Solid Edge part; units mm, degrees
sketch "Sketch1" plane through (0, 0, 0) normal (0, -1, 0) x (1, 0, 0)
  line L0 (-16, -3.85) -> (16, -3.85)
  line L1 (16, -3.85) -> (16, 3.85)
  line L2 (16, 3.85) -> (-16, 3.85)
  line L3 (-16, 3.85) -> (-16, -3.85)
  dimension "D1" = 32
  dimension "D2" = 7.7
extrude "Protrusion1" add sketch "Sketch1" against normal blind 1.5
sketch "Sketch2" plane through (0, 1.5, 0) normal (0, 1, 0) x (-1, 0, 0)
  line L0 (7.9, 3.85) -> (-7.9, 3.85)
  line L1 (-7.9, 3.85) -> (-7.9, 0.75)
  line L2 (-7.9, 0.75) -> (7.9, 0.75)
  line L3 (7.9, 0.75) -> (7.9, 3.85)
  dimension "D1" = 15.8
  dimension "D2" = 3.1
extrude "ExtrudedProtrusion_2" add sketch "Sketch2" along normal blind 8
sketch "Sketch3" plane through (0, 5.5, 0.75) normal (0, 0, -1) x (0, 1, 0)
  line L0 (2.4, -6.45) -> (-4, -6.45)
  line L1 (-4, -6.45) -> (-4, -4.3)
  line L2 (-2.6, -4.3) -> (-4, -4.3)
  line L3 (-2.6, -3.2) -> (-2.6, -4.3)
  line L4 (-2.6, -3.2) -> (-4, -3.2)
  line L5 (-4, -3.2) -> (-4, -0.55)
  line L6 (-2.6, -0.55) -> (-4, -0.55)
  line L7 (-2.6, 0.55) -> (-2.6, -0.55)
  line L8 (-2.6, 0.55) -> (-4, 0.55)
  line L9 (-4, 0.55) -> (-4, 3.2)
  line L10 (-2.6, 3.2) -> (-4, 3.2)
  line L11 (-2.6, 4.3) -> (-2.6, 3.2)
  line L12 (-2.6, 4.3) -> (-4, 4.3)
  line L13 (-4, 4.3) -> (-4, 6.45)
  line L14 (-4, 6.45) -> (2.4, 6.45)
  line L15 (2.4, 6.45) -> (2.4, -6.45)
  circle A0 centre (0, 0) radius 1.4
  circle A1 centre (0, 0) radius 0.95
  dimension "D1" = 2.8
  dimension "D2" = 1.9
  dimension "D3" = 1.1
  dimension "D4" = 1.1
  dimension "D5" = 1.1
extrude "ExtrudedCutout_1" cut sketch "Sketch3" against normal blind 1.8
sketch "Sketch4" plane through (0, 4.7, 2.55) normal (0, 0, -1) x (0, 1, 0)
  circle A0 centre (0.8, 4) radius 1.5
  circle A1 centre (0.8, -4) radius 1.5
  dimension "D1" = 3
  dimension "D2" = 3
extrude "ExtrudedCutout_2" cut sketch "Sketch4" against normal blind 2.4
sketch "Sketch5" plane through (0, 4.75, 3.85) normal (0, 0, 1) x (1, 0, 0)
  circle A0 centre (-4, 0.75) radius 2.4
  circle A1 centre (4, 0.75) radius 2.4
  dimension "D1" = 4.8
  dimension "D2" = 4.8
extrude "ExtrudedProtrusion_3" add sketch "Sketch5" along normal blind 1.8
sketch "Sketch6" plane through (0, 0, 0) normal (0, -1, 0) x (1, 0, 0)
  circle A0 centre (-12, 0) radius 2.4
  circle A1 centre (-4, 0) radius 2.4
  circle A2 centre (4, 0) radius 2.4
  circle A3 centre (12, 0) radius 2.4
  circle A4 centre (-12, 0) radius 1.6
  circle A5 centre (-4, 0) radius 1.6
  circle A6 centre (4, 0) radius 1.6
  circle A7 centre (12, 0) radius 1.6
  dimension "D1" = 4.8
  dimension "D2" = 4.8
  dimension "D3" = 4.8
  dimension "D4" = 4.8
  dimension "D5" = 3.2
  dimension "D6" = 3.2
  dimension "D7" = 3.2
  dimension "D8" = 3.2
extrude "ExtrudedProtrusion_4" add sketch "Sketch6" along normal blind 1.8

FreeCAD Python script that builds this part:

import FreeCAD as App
import Part
import Sketcher
Q = App.Units.Quantity


def add_polygon(sketch, points):
    """Adds a closed chain of lines whose ends are joined by coincident constraints."""
    first, n = sketch.GeometryCount, len(points)
    for a, b in zip(points, points[1:] + points[:1]):
        sketch.addGeometry(Part.LineSegment(App.Vector(*a, 0), App.Vector(*b, 0)), False)
    for i in range(n):
        sketch.addConstraint(Sketcher.Constraint("Coincident", first + i, 2, first + (i + 1) % n, 1))

doc = App.newDocument("Part")
body = doc.addObject("PartDesign::Body", "Body")

# Sketch on XZ plane
sketch1 = body.newObject("Sketcher::SketchObject", "Sketch")
sketch1.AttachmentSupport = (doc.getObject("XZ_Plane"), [""])
sketch1.MapMode = "FlatFace"
add_polygon(sketch1, [(-16, 4), (-16, -4), (16, -4), (16, 4)])  # lines 0-3
sketch1.addConstraint(Sketcher.Constraint("Vertical", 0))
sketch1.addConstraint(Sketcher.Constraint("Horizontal", 1))
sketch1.addConstraint(Sketcher.Constraint("Vertical", 2))
sketch1.addConstraint(Sketcher.Constraint("Horizontal", 3))
sketch1.addConstraint(Sketcher.Constraint("Symmetric", 0, 2, 2, 2, -1, 1))
sketch1.addConstraint(Sketcher.Constraint("DistanceX", 1, 1, 1, 2, Q("32 mm")))
sketch1.addConstraint(Sketcher.Constraint("DistanceY", 0, 2, 0, 1, Q("7.7 mm")))
pad1 = body.newObject("PartDesign::Pad", "Pad")
pad1.Profile = sketch1
pad1.Length = 1.5
pad1.Reversed = True

# Sketch on XZ plane
sketch2 = body.newObject("Sketcher::SketchObject", "Sketch001")
sketch2.AttachmentSupport = (doc.getObject("XZ_Plane"), [""])
sketch2.MapMode = "FlatFace"
sketch2.AttachmentOffset = App.Placement(App.Vector(0, 0, -1.5), App.Rotation())
add_polygon(sketch2, [(-7.9, 0.8), (-7.9, 3.9), (7.9, 3.9), (7.9, 0.8)])  # lines 0-3
sketch2.addConstraint(Sketcher.Constraint("Vertical", 0))
sketch2.addConstraint(Sketcher.Constraint("Horizontal", 1))
sketch2.addConstraint(Sketcher.Constraint("Vertical", 2))
sketch2.addConstraint(Sketcher.Constraint("Horizontal", 3))
sketch2.addConstraint(Sketcher.Constraint("DistanceX", 1, 1, 1, 2, Q("15.8 mm")))
sketch2.addConstraint(Sketcher.Constraint("DistanceY", 0, 1, 0, 2, Q("3.1 mm")))
sketch2.addConstraint(Sketcher.Constraint("DistanceX", 0, 2, -1, 1, Q("7.9 mm")))
sketch2.addConstraint(Sketcher.Constraint("DistanceY", -1, 1, 0, 2, Q("3.85 mm")))
pad2 = body.newObject("PartDesign::Pad", "Pad001")
pad2.Profile = sketch2
pad2.Length = 8
pad2.Reversed = True

# Sketch on XY plane
sketch3 = body.newObject("Sketcher::SketchObject", "Sketch002")
sketch3.AttachmentSupport = (doc.getObject("XY_Plane"), [""])
sketch3.MapMode = "FlatFace"
sketch3.AttachmentOffset = App.Placement(App.Vector(0, 0, 0.75), App.Rotation())
add_polygon(sketch3, [(-6.5, 1.5), (-6.5, 7.9), (6.5, 7.9), (6.5, 1.5), (4.3, 1.5), (4.3, 2.9), (3.2, 2.9), (3.2, 1.5), (0.6, 1.5), (0.6, 2.9), (-0.6, 2.9), (-0.6, 1.5), (-3.2, 1.5), (-3.2, 2.9), (-4.3, 2.9), (-4.3, 1.5)])  # lines 0-15
sketch3.addGeometry(Part.Circle(App.Vector(0, 5.5, 0), App.Vector(0, 0, 1), 1.4), False)  # 16
sketch3.addGeometry(Part.Circle(App.Vector(0, 5.5, 0), App.Vector(0, 0, 1), 0.9), False)  # 17
sketch3.addConstraint(Sketcher.Constraint("Vertical", 0))
sketch3.addConstraint(Sketcher.Constraint("Horizontal", 1))
sketch3.addConstraint(Sketcher.Constraint("Vertical", 2))
sketch3.addConstraint(Sketcher.Constraint("Horizontal", 3))
sketch3.addConstraint(Sketcher.Constraint("Vertical", 4))
sketch3.addConstraint(Sketcher.Constraint("Horizontal", 5))
sketch3.addConstraint(Sketcher.Constraint("Vertical", 6))
sketch3.addConstraint(Sketcher.Constraint("Horizontal", 7))
sketch3.addConstraint(Sketcher.Constraint("Vertical", 8))
sketch3.addConstraint(Sketcher.Constraint("Horizontal", 9))
sketch3.addConstraint(Sketcher.Constraint("Vertical", 10))
sketch3.addConstraint(Sketcher.Constraint("Horizontal", 11))
sketch3.addConstraint(Sketcher.Constraint("Vertical", 12))
sketch3.addConstraint(Sketcher.Constraint("Horizontal", 13))
sketch3.addConstraint(Sketcher.Constraint("Vertical", 14))
sketch3.addConstraint(Sketcher.Constraint("Horizontal", 15))
sketch3.addConstraint(Sketcher.Constraint("Coincident", 17, 3, 16, 3))
sketch3.addConstraint(Sketcher.Constraint("Symmetric", 7, 2, 10, 2, -2))
sketch3.addConstraint(Sketcher.Constraint("Symmetric", 5, 2, 12, 2, -2))
sketch3.addConstraint(Sketcher.Constraint("Symmetric", 3, 2, 14, 2, -2))
sketch3.addConstraint(Sketcher.Constraint("PointOnObject", 16, 3, -2))
sketch3.addConstraint(Sketcher.Constraint("Horizontal", 3, 2, 6, 2))
sketch3.addConstraint(Sketcher.Constraint("Horizontal", 5, 2, 8, 2))
sketch3.addConstraint(Sketcher.Constraint("Equal", 5, 9))
sketch3.addConstraint(Sketcher.Constraint("Equal", 3, 15))
sketch3.addConstraint(Sketcher.Constraint("Diameter", 16, Q("2.8 mm")))
sketch3.addConstraint(Sketcher.Constraint("Diameter", 17, Q("1.9 mm")))
sketch3.addConstraint(Sketcher.Constraint("DistanceX", 1, 1, 1, 2, Q("12.9 mm")))
sketch3.addConstraint(Sketcher.Constraint("DistanceX", 5, 2, 5, 1, Q("1.1 mm")))
sketch3.addConstraint(Sketcher.Constraint("DistanceY", 0, 1, 0, 2, Q("6.4 mm")))
sketch3.addConstraint(Sketcher.Constraint("DistanceY", 4, 1, 4, 2, Q("1.4 mm")))
sketch3.addConstraint(Sketcher.Constraint("DistanceY", 2, 2, 16, 3, Q("4 mm")))
sketch3.addConstraint(Sketcher.Constraint("DistanceX", 3, 2, 3, 1, Q("2.15 mm")))
sketch3.addConstraint(Sketcher.Constraint("DistanceY", -1, 1, 16, 3, Q("5.5 mm")))
pocket1 = body.newObject("PartDesign::Pocket", "Pocket")
pocket1.Profile = sketch3
pocket1.Length = 1.8
pocket1.Reversed = True

# Sketch on XY plane
sketch4 = body.newObject("Sketcher::SketchObject", "Sketch003")
sketch4.AttachmentSupport = (doc.getObject("XY_Plane"), [""])
sketch4.MapMode = "FlatFace"
sketch4.AttachmentOffset = App.Placement(App.Vector(0, 0, 2.55), App.Rotation())
sketch4.addGeometry(Part.Circle(App.Vector(4, 5.5, 0), App.Vector(0, 0, 1), 1.5), False)
sketch4.addGeometry(Part.Circle(App.Vector(-4, 5.5, 0), App.Vector(0, 0, 1), 1.5), False)
sketch4.addConstraint(Sketcher.Constraint("Equal", 0, 1))
sketch4.addConstraint(Sketcher.Constraint("Symmetric", 0, 3, 1, 3, -2))
sketch4.addConstraint(Sketcher.Constraint("Diameter", 0, Q("3 mm")))
sketch4.addConstraint(Sketcher.Constraint("DistanceX", -1, 1, 0, 3, Q("4 mm")))
sketch4.addConstraint(Sketcher.Constraint("DistanceY", -1, 1, 0, 3, Q("5.5 mm")))
pocket2 = body.newObject("PartDesign::Pocket", "Pocket001")
pocket2.Profile = sketch4
pocket2.Length = 2.4
pocket2.Reversed = True

# Sketch on XY plane
sketch5 = body.newObject("Sketcher::SketchObject", "Sketch004")
sketch5.AttachmentSupport = (doc.getObject("XY_Plane"), [""])
sketch5.MapMode = "FlatFace"
sketch5.AttachmentOffset = App.Placement(App.Vector(0, 0, 3.85), App.Rotation())
sketch5.addGeometry(Part.Circle(App.Vector(-4, 5.5, 0), App.Vector(0, 0, 1), 2.4), False)
sketch5.addGeometry(Part.Circle(App.Vector(4, 5.5, 0), App.Vector(0, 0, 1), 2.4), False)
sketch5.addConstraint(Sketcher.Constraint("Equal", 0, 1))
sketch5.addConstraint(Sketcher.Constraint("Symmetric", 0, 3, 1, 3, -2))
sketch5.addConstraint(Sketcher.Constraint("Diameter", 0, Q("4.8 mm")))
sketch5.addConstraint(Sketcher.Constraint("DistanceX", 0, 3, -1, 1, Q("4 mm")))
sketch5.addConstraint(Sketcher.Constraint("DistanceY", -1, 1, 0, 3, Q("5.5 mm")))
pad3 = body.newObject("PartDesign::Pad", "Pad002")
pad3.Profile = sketch5
pad3.Length = 1.8

# Sketch on XZ plane
sketch6 = body.newObject("Sketcher::SketchObject", "Sketch005")
sketch6.AttachmentSupport = (doc.getObject("XZ_Plane"), [""])
sketch6.MapMode = "FlatFace"
sketch6.addGeometry(Part.Circle(App.Vector(-12, 0, 0), App.Vector(0, 0, 1), 2.4), False)
sketch6.addGeometry(Part.Circle(App.Vector(-12, 0, 0), App.Vector(0, 0, 1), 1.6), False)
sketch6.addGeometry(Part.Circle(App.Vector(-4, 0, 0), App.Vector(0, 0, 1), 2.4), False)
sketch6.addGeometry(Part.Circle(App.Vector(-4, 0, 0), App.Vector(0, 0, 1), 1.6), False)
sketch6.addGeometry(Part.Circle(App.Vector(4, 0, 0), App.Vector(0, 0, 1), 2.4), False)
sketch6.addGeometry(Part.Circle(App.Vector(4, 0, 0), App.Vector(0, 0, 1), 1.6), False)
sketch6.addGeometry(Part.Circle(App.Vector(12, 0, 0), App.Vector(0, 0, 1), 2.4), False)
sketch6.addGeometry(Part.Circle(App.Vector(12, 0, 0), App.Vector(0, 0, 1), 1.6), False)
sketch6.addConstraint(Sketcher.Constraint("Coincident", 1, 3, 0, 3))
sketch6.addConstraint(Sketcher.Constraint("Coincident", 3, 3, 2, 3))
sketch6.addConstraint(Sketcher.Constraint("Coincident", 5, 3, 4, 3))
sketch6.addConstraint(Sketcher.Constraint("Coincident", 7, 3, 6, 3))
sketch6.addConstraint(Sketcher.Constraint("Equal", 0, 2))
sketch6.addConstraint(Sketcher.Constraint("Equal", 1, 3))
sketch6.addConstraint(Sketcher.Constraint("Equal", 2, 4))
sketch6.addConstraint(Sketcher.Constraint("Equal", 3, 5))
sketch6.addConstraint(Sketcher.Constraint("Equal", 4, 6))
sketch6.addConstraint(Sketcher.Constraint("Equal", 5, 7))
sketch6.addConstraint(Sketcher.Constraint("Symmetric", 2, 3, 4, 3, -1, 1))
sketch6.addConstraint(Sketcher.Constraint("Symmetric", 0, 3, 6, 3, -1, 1))
sketch6.addConstraint(Sketcher.Constraint("PointOnObject", 0, 3, -1))
sketch6.addConstraint(Sketcher.Constraint("PointOnObject", 2, 3, -1))
sketch6.addConstraint(Sketcher.Constraint("Diameter", 0, Q("4.8 mm")))
sketch6.addConstraint(Sketcher.Constraint("Diameter", 1, Q("3.2 mm")))
sketch6.addConstraint(Sketcher.Constraint("DistanceX", 0, 3, -1, 1, Q("12 mm")))
sketch6.addConstraint(Sketcher.Constraint("DistanceX", 2, 3, -1, 1, Q("4 mm")))
pad4 = body.newObject("PartDesign::Pad", "Pad003")
pad4.Profile = sketch6
pad4.Length = 1.8

doc.recompute()
